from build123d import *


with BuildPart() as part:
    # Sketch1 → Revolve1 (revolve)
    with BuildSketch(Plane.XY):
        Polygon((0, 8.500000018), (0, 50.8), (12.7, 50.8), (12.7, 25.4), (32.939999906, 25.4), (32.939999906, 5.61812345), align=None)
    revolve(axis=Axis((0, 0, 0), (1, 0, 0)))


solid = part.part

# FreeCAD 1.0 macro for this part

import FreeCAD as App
import Part
import Sketcher
Q = App.Units.Quantity


def add_polygon(sketch, points):
    """Adds a closed chain of lines whose ends are joined by coincident constraints."""
    first, n = sketch.GeometryCount, len(points)
    for a, b in zip(points, points[1:] + points[:1]):
        sketch.addGeometry(Part.LineSegment(App.Vector(*a, 0), App.Vector(*b, 0)), False)
    for i in range(n):
        sketch.addConstraint(Sketcher.Constraint("Coincident", first + i, 2, first + (i + 1) % n, 1))

doc = App.newDocument("Part")
params = doc.addObject("Spreadsheet::Sheet", "Params")
for row, (alias, value) in enumerate([
    ("sketch1_height", "1 in"),
    ("sketch1_width", "0.5 in"),
    ("revolution_angle", "360 deg"),
], start=1):
    params.set(f"A{row}", alias)
    params.set(f"B{row}", "=" + value)
    params.setAlias(f"B{row}", alias)

body = doc.addObject("PartDesign::Body", "Body")

sketch1 = doc.addObject("Sketcher::SketchObject", "Sketch")
body.addObject(sketch1)
sketch1.AttachmentSupport = (doc.XY_Plane, [""])
sketch1.MapMode = "FlatFace"
add_polygon(sketch1, [(0, 50.8), (0, 8.5), (32.94, 5.618123), (32.94, 25.4), (12.7, 25.4), (12.7, 50.8)])
sketch1.addConstraint(Sketcher.Constraint("Vertical", 0))
sketch1.addConstraint(Sketcher.Constraint("Vertical", 2))
sketch1.addConstraint(Sketcher.Constraint("Horizontal", 3))
sketch1.addConstraint(Sketcher.Constraint("Vertical", 4))
sketch1.addConstraint(Sketcher.Constraint("Horizontal", 5))
sketch1.addConstraint(Sketcher.Constraint("PointOnObject", 0, 2, -2))
sketch1.addConstraint(Sketcher.Constraint("DistanceY", 4, 1, 4, 2, Q("1 in")))
sketch1.addConstraint(Sketcher.Constraint("DistanceX", 5, 2, 5, 1, Q("0.5 in")))
sketch1.addConstraint(Sketcher.Constraint("DistanceY", -1, 1, 2, 2, Q("1 in")))
sketch1.addConstraint(Sketcher.Constraint("Angle", 1, Q("-5 deg")))
sketch1.addConstraint(Sketcher.Constraint("DistanceX", 3, 2, 3, 1, Q("20.24 mm")))
sketch1.addConstraint(Sketcher.Constraint("DistanceY", 0, 2, 0, 1, Q("42.3 mm")))
sketch1.setExpression("Constraints[12]", "Params.sketch1_height")
sketch1.setExpression("Constraints[13]", "Params.sketch1_width")
revolution = doc.addObject("PartDesign::Revolution", "Revolution")
body.addObject(revolution)
revolution.Profile = sketch1
revolution.ReferenceAxis = (sketch1, ["H_Axis"])
revolution.setExpression("Angle", "Params.revolution_angle")

doc.recompute()
